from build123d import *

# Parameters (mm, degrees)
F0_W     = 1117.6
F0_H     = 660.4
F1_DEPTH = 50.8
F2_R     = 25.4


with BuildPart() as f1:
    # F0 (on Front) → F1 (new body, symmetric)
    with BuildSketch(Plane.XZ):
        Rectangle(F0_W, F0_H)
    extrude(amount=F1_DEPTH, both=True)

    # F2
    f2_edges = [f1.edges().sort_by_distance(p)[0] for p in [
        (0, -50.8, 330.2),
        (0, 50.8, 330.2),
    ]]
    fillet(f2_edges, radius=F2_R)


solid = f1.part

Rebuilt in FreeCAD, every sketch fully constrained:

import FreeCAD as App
import Part
import Sketcher
Q = App.Units.Quantity


def edges_at(feature, points):
    """Names of the edges that pass closest to the given points."""
    edges = feature.Shape.Edges
    near = lambda p: min(range(len(edges)), key=lambda i: edges[i].distToShape(Part.Vertex(*p))[0])
    return sorted({f"Edge{near(p) + 1}" for p in points})


def add_polygon(sketch, points):
    """Adds a closed chain of lines whose ends are joined by coincident constraints."""
    first, n = sketch.GeometryCount, len(points)
    for a, b in zip(points, points[1:] + points[:1]):
        sketch.addGeometry(Part.LineSegment(App.Vector(*a, 0), App.Vector(*b, 0)), False)
    for i in range(n):
        sketch.addConstraint(Sketcher.Constraint("Coincident", first + i, 2, first + (i + 1) % n, 1))

doc = App.newDocument("Part")
params = doc.addObject("Spreadsheet::Sheet", "Params")
for row, (alias, value) in enumerate([
    ("sketch1_width", "44 in"),
    ("sketch1_height", "26 in"),
    ("pad1_length", "4 in"),
    ("fillet_radius", "1 in"),
], start=1):
    params.set(f"A{row}", alias)
    params.set(f"B{row}", "=" + value)
    params.setAlias(f"B{row}", alias)

body = doc.addObject("PartDesign::Body", "Body")

sketch1 = doc.addObject("Sketcher::SketchObject", "Sketch")
body.addObject(sketch1)
sketch1.AttachmentSupport = (doc.XZ_Plane, [""])
sketch1.MapMode = "FlatFace"
add_polygon(sketch1, [(-559, 330), (-559, -330), (559, -330), (559, 330)])
sketch1.addConstraint(Sketcher.Constraint("Vertical", 0))
sketch1.addConstraint(Sketcher.Constraint("Horizontal", 1))
sketch1.addConstraint(Sketcher.Constraint("Vertical", 2))
sketch1.addConstraint(Sketcher.Constraint("Horizontal", 3))
sketch1.addConstraint(Sketcher.Constraint("Symmetric", 0, 2, 2, 2, -1, 1))
sketch1.addConstraint(Sketcher.Constraint("DistanceX", 1, 1, 1, 2, Q("44 in")))
sketch1.addConstraint(Sketcher.Constraint("DistanceY", 0, 2, 0, 1, Q("26 in")))
sketch1.setExpression("Constraints[9]", "Params.sketch1_width")
sketch1.setExpression("Constraints[10]", "Params.sketch1_height")
pad1 = doc.addObject("PartDesign::Pad", "Pad")
body.addObject(pad1)
pad1.Profile = sketch1
pad1.setExpression("Length", "Params.pad1_length")
pad1.Midplane = True
doc.recompute()

fillet = doc.addObject("PartDesign::Fillet", "Fillet")
body.addObject(fillet)
fillet.Base = (pad1, edges_at(pad1, [(0, -50.8, 330.2), (0, 50.8, 330.2)]))
fillet.setExpression("Radius", "Params.fillet_radius")

doc.recompute()
